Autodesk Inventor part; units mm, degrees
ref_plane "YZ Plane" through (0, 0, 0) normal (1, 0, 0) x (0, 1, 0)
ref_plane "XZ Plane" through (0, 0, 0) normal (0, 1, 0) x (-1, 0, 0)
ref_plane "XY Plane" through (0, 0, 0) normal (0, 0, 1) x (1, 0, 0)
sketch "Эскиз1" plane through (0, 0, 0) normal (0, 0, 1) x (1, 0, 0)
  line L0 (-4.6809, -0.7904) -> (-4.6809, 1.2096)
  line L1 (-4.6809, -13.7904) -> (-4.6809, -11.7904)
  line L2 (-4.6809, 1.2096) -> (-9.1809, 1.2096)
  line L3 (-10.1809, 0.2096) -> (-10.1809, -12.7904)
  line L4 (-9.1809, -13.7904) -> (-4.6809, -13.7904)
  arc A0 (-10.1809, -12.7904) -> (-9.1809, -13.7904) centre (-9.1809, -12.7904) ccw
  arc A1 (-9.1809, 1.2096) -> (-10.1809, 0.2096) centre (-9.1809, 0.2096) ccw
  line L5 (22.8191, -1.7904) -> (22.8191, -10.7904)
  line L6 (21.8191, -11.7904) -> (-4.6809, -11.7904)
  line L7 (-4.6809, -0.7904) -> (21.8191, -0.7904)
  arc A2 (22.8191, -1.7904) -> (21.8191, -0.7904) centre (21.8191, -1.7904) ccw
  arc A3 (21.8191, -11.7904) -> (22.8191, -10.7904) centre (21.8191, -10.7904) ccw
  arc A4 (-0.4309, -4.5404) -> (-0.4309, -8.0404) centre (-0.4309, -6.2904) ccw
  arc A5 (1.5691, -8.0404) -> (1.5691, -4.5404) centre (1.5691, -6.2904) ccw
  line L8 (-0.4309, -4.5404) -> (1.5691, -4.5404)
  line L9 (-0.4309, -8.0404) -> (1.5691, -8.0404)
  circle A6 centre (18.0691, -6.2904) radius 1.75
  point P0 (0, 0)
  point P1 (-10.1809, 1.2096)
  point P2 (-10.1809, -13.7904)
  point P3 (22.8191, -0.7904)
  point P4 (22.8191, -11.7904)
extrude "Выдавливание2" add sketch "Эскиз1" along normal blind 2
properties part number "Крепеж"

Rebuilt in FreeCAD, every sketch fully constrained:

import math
import FreeCAD as App
import Part
import Sketcher

V = App.Vector
Q = App.Units.Quantity

doc = App.newDocument("Part")
body = doc.addObject("PartDesign::Body", "Body")

sketch1 = body.newObject("Sketcher::SketchObject", "Sketch")
sketch1.AttachmentSupport = (doc.getObject("XY_Plane"), [""])
sketch1.MapMode = "FlatFace"
sketch1.addGeometry([
    Part.LineSegment(V(21.8, -0.8, 0), V(-4.7, -0.8, 0)),
    Part.LineSegment(V(-4.7, -0.8, 0), V(-4.7, 1.2, 0)),
    Part.LineSegment(V(-4.7, 1.2, 0), V(-9.2, 1.2, 0)),
    Part.ArcOfCircle(Part.Circle(V(-9.2, 0.2, 0), V(0, 0, 1), 1), math.radians(90), math.radians(180)),
    Part.LineSegment(V(-10.2, 0.2, 0), V(-10.2, -12.8, 0)),
    Part.ArcOfCircle(Part.Circle(V(-9.2, -12.8, 0), V(0, 0, 1), 1), math.radians(180), math.radians(270)),
    Part.LineSegment(V(-9.2, -13.8, 0), V(-4.7, -13.8, 0)),
    Part.LineSegment(V(-4.7, -13.8, 0), V(-4.7, -11.8, 0)),
    Part.LineSegment(V(-4.7, -11.8, 0), V(21.8, -11.8, 0)),
    Part.ArcOfCircle(Part.Circle(V(21.8, -10.8, 0), V(0, 0, 1), 1), math.radians(-90), math.radians(0)),
    Part.LineSegment(V(22.8, -10.8, 0), V(22.8, -1.8, 0)),
    Part.ArcOfCircle(Part.Circle(V(21.8, -1.8, 0), V(0, 0, 1), 1), math.radians(0), math.radians(90)),
    Part.ArcOfCircle(Part.Circle(V(-0.4, -6.3, 0), V(0, 0, 1), 1.8), math.radians(90), math.radians(270)),
    Part.LineSegment(V(-0.4, -4.5, 0), V(1.6, -4.5, 0)),
    Part.ArcOfCircle(Part.Circle(V(1.6, -6.3, 0), V(0, 0, 1), 1.8), math.radians(-90), math.radians(90)),
    Part.LineSegment(V(1.6, -8, 0), V(-0.4, -8, 0)),
    Part.Circle(V(18.1, -6.3, 0), V(0, 0, 1), 1.8),
], False)
sketch1.addConstraint([
    Sketcher.Constraint("Coincident", 0, 2, 1, 1),
    Sketcher.Constraint("Coincident", 1, 2, 2, 1),
    Sketcher.Constraint("Tangent", 2, 2, 3, 1),
    Sketcher.Constraint("Tangent", 3, 2, 4, 1),
    Sketcher.Constraint("Tangent", 4, 2, 5, 1),
    Sketcher.Constraint("Tangent", 5, 2, 6, 1),
    Sketcher.Constraint("Coincident", 6, 2, 7, 1),
    Sketcher.Constraint("Coincident", 7, 2, 8, 1),
    Sketcher.Constraint("Tangent", 8, 2, 9, 1),
    Sketcher.Constraint("Tangent", 9, 2, 10, 1),
    Sketcher.Constraint("Tangent", 10, 2, 11, 1),
    Sketcher.Constraint("Tangent", 11, 2, 0, 1),
    Sketcher.Constraint("Tangent", 12, 1, 13, 1),
    Sketcher.Constraint("Tangent", 13, 2, 14, 2),
    Sketcher.Constraint("Tangent", 14, 1, 15, 1),
    Sketcher.Constraint("Tangent", 15, 2, 12, 2),
    Sketcher.Constraint("Horizontal", 0),
    Sketcher.Constraint("Vertical", 1),
    Sketcher.Constraint("Horizontal", 2),
    Sketcher.Constraint("Vertical", 4),
    Sketcher.Constraint("Horizontal", 6),
    Sketcher.Constraint("Vertical", 7),
    Sketcher.Constraint("Horizontal", 8),
    Sketcher.Constraint("Vertical", 10),
    Sketcher.Constraint("Horizontal", 13),
    Sketcher.Constraint("Horizontal", 15),
    Sketcher.Constraint("Equal", 3, 5),
    Sketcher.Constraint("Equal", 5, 9),
    Sketcher.Constraint("Equal", 9, 11),
    Sketcher.Constraint("Equal", 14, 16),
    Sketcher.Constraint("Horizontal", 14, 3, 16, 3),
    Sketcher.Constraint("Vertical", 1, 2, 6, 2),
    Sketcher.Constraint("Equal", 15, 1),
    Sketcher.Constraint("Equal", 1, 7),
    Sketcher.Constraint("Radius", 3, Q("1 mm")),
    Sketcher.Constraint("Diameter", 16, Q("3.5 mm")),
    Sketcher.Constraint("DistanceX", 13, 1, 13, 2, Q("2 mm")),
    Sketcher.Constraint("DistanceY", 4, 2, 4, 1, Q("13 mm")),
    Sketcher.Constraint("DistanceX", 0, 2, 0, 1, Q("26.5 mm")),
    Sketcher.Constraint("DistanceX", 2, 2, 2, 1, Q("4.5 mm")),
    Sketcher.Constraint("DistanceY", 12, 3, 3, 3, Q("6.5 mm")),
    Sketcher.Constraint("DistanceX", 14, 3, 16, 3, Q("16.5 mm")),
    Sketcher.Constraint("DistanceX", 3, 3, 12, 3, Q("8.75 mm")),
    Sketcher.Constraint("DistanceX", 3, 3, -1, 1, Q("9.181 mm")),
    Sketcher.Constraint("DistanceY", -1, 1, 3, 3, Q("0.2096 mm")),
])
pad1 = body.newObject("PartDesign::Pad", "Pad")
pad1.Profile = sketch1
pad1.Length = 2

doc.recompute()
